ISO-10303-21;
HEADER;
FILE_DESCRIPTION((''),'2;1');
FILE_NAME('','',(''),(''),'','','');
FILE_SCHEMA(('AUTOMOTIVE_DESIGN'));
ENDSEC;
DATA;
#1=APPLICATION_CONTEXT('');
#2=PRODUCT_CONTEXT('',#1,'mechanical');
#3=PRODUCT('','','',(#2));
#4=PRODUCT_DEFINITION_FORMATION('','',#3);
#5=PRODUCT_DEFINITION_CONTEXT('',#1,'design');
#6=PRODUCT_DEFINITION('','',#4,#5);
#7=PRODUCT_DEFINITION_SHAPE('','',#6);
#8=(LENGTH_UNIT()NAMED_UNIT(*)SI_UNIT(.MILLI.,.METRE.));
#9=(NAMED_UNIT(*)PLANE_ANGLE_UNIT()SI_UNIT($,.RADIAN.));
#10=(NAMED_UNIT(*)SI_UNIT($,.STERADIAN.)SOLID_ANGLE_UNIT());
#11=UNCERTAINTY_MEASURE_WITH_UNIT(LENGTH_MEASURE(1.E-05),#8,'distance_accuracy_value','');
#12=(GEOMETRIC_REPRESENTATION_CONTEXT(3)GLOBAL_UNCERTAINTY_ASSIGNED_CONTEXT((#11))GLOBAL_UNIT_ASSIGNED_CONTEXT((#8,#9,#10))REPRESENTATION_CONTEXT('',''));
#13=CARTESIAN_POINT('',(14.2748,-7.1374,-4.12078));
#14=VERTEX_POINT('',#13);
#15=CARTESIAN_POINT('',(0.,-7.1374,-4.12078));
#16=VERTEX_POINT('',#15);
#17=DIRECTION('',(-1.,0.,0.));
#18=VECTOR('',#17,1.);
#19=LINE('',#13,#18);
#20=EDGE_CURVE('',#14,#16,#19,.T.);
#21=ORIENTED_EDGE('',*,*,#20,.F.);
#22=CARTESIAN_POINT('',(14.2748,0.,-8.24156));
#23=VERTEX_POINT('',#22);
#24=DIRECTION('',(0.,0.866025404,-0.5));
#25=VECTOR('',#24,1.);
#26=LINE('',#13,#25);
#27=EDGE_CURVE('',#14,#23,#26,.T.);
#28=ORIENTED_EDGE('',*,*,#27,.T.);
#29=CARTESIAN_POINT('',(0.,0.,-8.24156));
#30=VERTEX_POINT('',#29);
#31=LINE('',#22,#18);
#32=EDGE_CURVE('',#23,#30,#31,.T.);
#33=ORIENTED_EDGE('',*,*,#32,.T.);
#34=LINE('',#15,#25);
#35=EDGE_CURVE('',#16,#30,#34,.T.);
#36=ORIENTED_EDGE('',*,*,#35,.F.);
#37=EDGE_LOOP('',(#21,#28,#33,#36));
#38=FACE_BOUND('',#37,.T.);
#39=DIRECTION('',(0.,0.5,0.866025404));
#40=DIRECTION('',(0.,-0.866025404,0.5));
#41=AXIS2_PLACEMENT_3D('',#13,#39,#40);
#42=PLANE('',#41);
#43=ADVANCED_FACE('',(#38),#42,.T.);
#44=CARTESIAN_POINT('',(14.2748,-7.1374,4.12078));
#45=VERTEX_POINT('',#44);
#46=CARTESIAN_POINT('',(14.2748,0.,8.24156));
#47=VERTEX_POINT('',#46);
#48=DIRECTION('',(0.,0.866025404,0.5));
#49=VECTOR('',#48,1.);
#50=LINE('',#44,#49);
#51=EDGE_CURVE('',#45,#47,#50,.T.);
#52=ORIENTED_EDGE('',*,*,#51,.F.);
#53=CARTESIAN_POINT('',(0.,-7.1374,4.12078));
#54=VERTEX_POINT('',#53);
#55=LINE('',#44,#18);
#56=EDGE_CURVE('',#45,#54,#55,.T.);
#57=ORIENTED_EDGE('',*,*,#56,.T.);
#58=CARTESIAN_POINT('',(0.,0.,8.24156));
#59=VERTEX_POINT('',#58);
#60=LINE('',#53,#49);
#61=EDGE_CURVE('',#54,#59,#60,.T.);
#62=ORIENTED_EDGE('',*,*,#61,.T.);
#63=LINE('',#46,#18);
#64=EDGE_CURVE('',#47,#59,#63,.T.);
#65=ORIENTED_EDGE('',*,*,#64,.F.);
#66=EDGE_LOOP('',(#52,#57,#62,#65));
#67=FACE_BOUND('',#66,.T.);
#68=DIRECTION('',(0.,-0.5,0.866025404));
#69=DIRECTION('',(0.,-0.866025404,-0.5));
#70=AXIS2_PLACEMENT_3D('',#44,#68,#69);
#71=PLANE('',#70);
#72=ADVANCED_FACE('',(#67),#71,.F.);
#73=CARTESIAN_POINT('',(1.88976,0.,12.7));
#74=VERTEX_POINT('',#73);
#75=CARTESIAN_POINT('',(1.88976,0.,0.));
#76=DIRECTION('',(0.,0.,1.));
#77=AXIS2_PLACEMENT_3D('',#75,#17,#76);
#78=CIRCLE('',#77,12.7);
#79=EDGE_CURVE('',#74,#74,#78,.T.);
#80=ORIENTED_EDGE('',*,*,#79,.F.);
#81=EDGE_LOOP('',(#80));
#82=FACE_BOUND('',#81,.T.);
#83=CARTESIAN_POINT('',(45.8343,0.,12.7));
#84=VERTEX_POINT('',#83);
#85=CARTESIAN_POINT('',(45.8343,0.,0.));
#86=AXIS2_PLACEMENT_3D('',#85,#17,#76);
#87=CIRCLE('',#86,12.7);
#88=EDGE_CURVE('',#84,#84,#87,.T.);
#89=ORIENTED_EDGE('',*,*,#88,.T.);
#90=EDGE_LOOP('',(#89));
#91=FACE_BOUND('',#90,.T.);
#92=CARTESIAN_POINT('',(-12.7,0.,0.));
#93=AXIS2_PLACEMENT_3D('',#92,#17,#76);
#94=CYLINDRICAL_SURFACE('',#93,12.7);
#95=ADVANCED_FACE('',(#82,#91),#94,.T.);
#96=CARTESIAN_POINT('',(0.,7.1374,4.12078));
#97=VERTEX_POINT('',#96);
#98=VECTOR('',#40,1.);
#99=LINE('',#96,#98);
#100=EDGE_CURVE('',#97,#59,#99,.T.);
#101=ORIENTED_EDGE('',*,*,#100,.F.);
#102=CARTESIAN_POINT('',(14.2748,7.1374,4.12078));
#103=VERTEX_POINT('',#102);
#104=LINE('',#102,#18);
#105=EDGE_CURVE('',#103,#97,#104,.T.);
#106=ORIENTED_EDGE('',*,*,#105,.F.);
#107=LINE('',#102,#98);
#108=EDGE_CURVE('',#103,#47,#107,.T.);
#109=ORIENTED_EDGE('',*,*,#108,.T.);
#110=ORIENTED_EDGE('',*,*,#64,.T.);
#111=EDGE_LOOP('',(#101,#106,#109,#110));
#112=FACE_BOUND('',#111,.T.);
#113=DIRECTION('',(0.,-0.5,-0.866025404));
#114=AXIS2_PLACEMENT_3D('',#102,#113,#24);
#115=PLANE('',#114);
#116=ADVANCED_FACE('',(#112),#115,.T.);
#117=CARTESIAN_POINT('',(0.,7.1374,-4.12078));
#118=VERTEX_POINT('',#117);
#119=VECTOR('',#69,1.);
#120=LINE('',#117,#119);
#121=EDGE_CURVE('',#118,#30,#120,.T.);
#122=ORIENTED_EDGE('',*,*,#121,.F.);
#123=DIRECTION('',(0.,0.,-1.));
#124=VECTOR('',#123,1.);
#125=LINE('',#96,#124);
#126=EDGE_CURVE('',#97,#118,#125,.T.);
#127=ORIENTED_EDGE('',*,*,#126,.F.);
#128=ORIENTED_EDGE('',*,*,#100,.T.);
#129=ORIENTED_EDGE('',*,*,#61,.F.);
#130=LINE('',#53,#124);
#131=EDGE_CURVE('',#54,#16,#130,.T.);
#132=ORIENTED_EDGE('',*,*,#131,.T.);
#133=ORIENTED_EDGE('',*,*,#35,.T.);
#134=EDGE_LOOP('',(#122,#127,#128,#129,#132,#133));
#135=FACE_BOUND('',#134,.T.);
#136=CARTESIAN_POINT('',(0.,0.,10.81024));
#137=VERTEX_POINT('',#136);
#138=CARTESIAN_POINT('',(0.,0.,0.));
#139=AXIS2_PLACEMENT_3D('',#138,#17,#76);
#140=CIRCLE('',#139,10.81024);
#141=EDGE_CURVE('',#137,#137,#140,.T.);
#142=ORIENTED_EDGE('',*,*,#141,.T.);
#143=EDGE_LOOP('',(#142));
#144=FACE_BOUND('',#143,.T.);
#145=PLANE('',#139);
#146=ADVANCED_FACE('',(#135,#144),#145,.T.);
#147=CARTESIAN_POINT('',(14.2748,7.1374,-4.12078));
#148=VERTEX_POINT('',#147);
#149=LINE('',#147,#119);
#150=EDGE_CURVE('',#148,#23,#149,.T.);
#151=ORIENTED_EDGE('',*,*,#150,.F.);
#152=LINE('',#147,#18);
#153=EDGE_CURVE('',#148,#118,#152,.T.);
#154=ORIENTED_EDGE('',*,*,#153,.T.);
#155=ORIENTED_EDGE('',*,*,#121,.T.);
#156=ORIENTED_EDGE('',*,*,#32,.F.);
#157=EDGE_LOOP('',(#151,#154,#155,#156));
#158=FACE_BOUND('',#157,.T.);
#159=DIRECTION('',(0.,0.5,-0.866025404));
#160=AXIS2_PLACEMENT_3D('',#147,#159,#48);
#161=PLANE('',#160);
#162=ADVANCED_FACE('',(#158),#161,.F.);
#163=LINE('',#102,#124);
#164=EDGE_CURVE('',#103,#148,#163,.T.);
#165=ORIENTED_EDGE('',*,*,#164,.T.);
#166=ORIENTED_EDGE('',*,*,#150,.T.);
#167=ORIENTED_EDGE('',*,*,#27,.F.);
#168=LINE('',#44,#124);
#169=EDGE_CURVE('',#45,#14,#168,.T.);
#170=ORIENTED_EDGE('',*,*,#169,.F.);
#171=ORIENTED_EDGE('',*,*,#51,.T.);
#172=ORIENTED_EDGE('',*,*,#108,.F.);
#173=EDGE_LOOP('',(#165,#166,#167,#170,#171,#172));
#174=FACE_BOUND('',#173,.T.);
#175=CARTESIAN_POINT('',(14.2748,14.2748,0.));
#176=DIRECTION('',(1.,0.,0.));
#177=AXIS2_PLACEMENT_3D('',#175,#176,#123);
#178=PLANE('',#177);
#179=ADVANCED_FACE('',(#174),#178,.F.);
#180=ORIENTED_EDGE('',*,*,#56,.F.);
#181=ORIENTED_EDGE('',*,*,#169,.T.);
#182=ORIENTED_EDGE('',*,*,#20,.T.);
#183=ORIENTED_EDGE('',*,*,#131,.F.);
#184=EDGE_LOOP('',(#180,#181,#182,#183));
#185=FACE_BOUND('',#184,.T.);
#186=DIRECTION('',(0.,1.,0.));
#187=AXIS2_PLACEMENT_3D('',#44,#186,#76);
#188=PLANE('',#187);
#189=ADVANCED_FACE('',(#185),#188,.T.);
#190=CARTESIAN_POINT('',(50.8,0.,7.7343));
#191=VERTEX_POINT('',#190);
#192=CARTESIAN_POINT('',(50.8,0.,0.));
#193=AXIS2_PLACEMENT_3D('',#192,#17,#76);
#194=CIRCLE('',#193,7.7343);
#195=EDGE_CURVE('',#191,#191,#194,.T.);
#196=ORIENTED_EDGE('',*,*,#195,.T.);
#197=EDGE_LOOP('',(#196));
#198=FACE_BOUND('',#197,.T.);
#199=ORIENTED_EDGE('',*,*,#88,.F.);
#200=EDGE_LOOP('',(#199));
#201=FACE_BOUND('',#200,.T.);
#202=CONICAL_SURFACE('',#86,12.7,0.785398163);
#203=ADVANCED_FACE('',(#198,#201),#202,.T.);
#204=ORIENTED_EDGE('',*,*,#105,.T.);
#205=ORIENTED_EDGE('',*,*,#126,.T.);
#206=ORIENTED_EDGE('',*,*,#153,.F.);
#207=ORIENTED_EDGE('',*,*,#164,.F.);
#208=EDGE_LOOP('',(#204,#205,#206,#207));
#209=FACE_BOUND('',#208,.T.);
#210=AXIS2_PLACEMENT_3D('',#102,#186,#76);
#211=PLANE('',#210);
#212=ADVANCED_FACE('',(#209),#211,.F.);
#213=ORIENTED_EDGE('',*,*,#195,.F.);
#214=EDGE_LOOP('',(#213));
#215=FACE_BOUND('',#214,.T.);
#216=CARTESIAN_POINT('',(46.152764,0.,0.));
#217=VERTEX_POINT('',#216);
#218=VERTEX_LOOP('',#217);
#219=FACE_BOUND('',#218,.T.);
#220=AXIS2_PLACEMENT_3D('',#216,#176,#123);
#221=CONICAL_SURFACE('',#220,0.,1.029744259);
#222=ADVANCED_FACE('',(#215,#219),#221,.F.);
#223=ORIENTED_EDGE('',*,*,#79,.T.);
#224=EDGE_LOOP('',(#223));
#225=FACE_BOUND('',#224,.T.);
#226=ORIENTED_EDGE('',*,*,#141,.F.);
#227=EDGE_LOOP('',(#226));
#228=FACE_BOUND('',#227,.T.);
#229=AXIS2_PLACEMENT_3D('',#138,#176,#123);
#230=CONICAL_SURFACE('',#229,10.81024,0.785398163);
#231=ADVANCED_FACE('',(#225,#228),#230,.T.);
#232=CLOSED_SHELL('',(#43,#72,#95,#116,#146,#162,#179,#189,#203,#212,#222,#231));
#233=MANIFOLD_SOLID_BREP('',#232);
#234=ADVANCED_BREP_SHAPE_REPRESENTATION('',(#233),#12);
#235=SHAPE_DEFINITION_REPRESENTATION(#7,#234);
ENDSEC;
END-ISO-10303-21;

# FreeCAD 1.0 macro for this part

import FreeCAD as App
import Part
import Sketcher

V = App.Vector
Q = App.Units.Quantity


def add_polygon(sketch, points):
    """Adds a closed chain of lines whose ends are joined by coincident constraints."""
    first, n = sketch.GeometryCount, len(points)
    for a, b in zip(points, points[1:] + points[:1]):
        sketch.addGeometry(Part.LineSegment(App.Vector(*a, 0), App.Vector(*b, 0)), False)
    for i in range(n):
        sketch.addConstraint(Sketcher.Constraint("Coincident", first + i, 2, first + (i + 1) % n, 1))

doc = App.newDocument("Part")
params = doc.addObject("Spreadsheet::Sheet", "Params")
for row, (alias, value) in enumerate([
    ("revolution_angle", "360 deg"),
    ("pocket1_length", "0.562 in"),
], start=1):
    params.set(f"A{row}", alias)
    params.set(f"B{row}", "=" + value)
    params.setAlias(f"B{row}", alias)

body = doc.addObject("PartDesign::Body", "Body")

# Sketch on XY plane
sketch1 = body.newObject("Sketcher::SketchObject", "Sketch")
sketch1.AttachmentSupport = (doc.getObject("XY_Plane"), [""])
sketch1.MapMode = "FlatFace"
add_polygon(sketch1, [(0, 10.8), (0, 0), (46.2, 0), (50.8, 7.7), (45.8, 12.7), (1.9, 12.7)])  # lines 0-5
sketch1.addConstraint([
    Sketcher.Constraint("Vertical", 0),
    Sketcher.Constraint("Horizontal", 1),
    Sketcher.Constraint("Horizontal", 4),
    Sketcher.Constraint("Coincident", 0, 2, -1, 1),
    Sketcher.Constraint("Perpendicular", 3, 5),
    Sketcher.Constraint("DistanceX", -1, 1, 2, 2, Q("2 in")),
    Sketcher.Constraint("Angle", 2, Q("59 deg")),
    Sketcher.Constraint("Angle", 3, Q("135 deg")),
    Sketcher.Constraint("DistanceY", -1, 1, 3, 2, Q("0.5 in")),
    Sketcher.Constraint("DistanceX", 4, 2, 4, 1, Q("1.7301 in")),
    Sketcher.Constraint("DistanceY", 0, 2, 0, 1, Q("0.4256 in")),
])
revolution = body.newObject("PartDesign::Revolution", "Revolution")
revolution.Profile = sketch1
revolution.ReferenceAxis = (sketch1, ["H_Axis"])
revolution.setExpression("Angle", "Params.revolution_angle")

# Sketch on YZ plane
sketch2 = body.newObject("Sketcher::SketchObject", "Sketch001")
sketch2.AttachmentSupport = (doc.getObject("YZ_Plane"), [""])
sketch2.MapMode = "FlatFace"
add_polygon(sketch2, [(7, 4), (7, -4), (0, -8), (-7, -4), (-7, 4), (0, 8)])  # lines 0-5
sketch2.addConstraint([
    Sketcher.Constraint("Vertical", 0),
    Sketcher.Constraint("Vertical", 3),
    Sketcher.Constraint("Symmetric", 0, 2, 3, 2, -1, 1),
    Sketcher.Constraint("Symmetric", 1, 2, 4, 2, -1, 1),
    Sketcher.Constraint("PointOnObject", 1, 2, -2),
    Sketcher.Constraint("Parallel", 2, 5),
    Sketcher.Constraint("Horizontal", 0, 2, 2, 2),
    Sketcher.Constraint("Angle", 1, Q("-150 deg")),
    Sketcher.Constraint("DistanceX", -1, 1, 0, 2, Q("0.281 in")),
    Sketcher.Constraint("DistanceY", 0, 2, 0, 1, 8.24156),
])
pocket1 = body.newObject("PartDesign::Pocket", "Pocket")
pocket1.Profile = sketch2
pocket1.setExpression("Length", "Params.pocket1_length")
pocket1.Reversed = True

doc.recompute()
